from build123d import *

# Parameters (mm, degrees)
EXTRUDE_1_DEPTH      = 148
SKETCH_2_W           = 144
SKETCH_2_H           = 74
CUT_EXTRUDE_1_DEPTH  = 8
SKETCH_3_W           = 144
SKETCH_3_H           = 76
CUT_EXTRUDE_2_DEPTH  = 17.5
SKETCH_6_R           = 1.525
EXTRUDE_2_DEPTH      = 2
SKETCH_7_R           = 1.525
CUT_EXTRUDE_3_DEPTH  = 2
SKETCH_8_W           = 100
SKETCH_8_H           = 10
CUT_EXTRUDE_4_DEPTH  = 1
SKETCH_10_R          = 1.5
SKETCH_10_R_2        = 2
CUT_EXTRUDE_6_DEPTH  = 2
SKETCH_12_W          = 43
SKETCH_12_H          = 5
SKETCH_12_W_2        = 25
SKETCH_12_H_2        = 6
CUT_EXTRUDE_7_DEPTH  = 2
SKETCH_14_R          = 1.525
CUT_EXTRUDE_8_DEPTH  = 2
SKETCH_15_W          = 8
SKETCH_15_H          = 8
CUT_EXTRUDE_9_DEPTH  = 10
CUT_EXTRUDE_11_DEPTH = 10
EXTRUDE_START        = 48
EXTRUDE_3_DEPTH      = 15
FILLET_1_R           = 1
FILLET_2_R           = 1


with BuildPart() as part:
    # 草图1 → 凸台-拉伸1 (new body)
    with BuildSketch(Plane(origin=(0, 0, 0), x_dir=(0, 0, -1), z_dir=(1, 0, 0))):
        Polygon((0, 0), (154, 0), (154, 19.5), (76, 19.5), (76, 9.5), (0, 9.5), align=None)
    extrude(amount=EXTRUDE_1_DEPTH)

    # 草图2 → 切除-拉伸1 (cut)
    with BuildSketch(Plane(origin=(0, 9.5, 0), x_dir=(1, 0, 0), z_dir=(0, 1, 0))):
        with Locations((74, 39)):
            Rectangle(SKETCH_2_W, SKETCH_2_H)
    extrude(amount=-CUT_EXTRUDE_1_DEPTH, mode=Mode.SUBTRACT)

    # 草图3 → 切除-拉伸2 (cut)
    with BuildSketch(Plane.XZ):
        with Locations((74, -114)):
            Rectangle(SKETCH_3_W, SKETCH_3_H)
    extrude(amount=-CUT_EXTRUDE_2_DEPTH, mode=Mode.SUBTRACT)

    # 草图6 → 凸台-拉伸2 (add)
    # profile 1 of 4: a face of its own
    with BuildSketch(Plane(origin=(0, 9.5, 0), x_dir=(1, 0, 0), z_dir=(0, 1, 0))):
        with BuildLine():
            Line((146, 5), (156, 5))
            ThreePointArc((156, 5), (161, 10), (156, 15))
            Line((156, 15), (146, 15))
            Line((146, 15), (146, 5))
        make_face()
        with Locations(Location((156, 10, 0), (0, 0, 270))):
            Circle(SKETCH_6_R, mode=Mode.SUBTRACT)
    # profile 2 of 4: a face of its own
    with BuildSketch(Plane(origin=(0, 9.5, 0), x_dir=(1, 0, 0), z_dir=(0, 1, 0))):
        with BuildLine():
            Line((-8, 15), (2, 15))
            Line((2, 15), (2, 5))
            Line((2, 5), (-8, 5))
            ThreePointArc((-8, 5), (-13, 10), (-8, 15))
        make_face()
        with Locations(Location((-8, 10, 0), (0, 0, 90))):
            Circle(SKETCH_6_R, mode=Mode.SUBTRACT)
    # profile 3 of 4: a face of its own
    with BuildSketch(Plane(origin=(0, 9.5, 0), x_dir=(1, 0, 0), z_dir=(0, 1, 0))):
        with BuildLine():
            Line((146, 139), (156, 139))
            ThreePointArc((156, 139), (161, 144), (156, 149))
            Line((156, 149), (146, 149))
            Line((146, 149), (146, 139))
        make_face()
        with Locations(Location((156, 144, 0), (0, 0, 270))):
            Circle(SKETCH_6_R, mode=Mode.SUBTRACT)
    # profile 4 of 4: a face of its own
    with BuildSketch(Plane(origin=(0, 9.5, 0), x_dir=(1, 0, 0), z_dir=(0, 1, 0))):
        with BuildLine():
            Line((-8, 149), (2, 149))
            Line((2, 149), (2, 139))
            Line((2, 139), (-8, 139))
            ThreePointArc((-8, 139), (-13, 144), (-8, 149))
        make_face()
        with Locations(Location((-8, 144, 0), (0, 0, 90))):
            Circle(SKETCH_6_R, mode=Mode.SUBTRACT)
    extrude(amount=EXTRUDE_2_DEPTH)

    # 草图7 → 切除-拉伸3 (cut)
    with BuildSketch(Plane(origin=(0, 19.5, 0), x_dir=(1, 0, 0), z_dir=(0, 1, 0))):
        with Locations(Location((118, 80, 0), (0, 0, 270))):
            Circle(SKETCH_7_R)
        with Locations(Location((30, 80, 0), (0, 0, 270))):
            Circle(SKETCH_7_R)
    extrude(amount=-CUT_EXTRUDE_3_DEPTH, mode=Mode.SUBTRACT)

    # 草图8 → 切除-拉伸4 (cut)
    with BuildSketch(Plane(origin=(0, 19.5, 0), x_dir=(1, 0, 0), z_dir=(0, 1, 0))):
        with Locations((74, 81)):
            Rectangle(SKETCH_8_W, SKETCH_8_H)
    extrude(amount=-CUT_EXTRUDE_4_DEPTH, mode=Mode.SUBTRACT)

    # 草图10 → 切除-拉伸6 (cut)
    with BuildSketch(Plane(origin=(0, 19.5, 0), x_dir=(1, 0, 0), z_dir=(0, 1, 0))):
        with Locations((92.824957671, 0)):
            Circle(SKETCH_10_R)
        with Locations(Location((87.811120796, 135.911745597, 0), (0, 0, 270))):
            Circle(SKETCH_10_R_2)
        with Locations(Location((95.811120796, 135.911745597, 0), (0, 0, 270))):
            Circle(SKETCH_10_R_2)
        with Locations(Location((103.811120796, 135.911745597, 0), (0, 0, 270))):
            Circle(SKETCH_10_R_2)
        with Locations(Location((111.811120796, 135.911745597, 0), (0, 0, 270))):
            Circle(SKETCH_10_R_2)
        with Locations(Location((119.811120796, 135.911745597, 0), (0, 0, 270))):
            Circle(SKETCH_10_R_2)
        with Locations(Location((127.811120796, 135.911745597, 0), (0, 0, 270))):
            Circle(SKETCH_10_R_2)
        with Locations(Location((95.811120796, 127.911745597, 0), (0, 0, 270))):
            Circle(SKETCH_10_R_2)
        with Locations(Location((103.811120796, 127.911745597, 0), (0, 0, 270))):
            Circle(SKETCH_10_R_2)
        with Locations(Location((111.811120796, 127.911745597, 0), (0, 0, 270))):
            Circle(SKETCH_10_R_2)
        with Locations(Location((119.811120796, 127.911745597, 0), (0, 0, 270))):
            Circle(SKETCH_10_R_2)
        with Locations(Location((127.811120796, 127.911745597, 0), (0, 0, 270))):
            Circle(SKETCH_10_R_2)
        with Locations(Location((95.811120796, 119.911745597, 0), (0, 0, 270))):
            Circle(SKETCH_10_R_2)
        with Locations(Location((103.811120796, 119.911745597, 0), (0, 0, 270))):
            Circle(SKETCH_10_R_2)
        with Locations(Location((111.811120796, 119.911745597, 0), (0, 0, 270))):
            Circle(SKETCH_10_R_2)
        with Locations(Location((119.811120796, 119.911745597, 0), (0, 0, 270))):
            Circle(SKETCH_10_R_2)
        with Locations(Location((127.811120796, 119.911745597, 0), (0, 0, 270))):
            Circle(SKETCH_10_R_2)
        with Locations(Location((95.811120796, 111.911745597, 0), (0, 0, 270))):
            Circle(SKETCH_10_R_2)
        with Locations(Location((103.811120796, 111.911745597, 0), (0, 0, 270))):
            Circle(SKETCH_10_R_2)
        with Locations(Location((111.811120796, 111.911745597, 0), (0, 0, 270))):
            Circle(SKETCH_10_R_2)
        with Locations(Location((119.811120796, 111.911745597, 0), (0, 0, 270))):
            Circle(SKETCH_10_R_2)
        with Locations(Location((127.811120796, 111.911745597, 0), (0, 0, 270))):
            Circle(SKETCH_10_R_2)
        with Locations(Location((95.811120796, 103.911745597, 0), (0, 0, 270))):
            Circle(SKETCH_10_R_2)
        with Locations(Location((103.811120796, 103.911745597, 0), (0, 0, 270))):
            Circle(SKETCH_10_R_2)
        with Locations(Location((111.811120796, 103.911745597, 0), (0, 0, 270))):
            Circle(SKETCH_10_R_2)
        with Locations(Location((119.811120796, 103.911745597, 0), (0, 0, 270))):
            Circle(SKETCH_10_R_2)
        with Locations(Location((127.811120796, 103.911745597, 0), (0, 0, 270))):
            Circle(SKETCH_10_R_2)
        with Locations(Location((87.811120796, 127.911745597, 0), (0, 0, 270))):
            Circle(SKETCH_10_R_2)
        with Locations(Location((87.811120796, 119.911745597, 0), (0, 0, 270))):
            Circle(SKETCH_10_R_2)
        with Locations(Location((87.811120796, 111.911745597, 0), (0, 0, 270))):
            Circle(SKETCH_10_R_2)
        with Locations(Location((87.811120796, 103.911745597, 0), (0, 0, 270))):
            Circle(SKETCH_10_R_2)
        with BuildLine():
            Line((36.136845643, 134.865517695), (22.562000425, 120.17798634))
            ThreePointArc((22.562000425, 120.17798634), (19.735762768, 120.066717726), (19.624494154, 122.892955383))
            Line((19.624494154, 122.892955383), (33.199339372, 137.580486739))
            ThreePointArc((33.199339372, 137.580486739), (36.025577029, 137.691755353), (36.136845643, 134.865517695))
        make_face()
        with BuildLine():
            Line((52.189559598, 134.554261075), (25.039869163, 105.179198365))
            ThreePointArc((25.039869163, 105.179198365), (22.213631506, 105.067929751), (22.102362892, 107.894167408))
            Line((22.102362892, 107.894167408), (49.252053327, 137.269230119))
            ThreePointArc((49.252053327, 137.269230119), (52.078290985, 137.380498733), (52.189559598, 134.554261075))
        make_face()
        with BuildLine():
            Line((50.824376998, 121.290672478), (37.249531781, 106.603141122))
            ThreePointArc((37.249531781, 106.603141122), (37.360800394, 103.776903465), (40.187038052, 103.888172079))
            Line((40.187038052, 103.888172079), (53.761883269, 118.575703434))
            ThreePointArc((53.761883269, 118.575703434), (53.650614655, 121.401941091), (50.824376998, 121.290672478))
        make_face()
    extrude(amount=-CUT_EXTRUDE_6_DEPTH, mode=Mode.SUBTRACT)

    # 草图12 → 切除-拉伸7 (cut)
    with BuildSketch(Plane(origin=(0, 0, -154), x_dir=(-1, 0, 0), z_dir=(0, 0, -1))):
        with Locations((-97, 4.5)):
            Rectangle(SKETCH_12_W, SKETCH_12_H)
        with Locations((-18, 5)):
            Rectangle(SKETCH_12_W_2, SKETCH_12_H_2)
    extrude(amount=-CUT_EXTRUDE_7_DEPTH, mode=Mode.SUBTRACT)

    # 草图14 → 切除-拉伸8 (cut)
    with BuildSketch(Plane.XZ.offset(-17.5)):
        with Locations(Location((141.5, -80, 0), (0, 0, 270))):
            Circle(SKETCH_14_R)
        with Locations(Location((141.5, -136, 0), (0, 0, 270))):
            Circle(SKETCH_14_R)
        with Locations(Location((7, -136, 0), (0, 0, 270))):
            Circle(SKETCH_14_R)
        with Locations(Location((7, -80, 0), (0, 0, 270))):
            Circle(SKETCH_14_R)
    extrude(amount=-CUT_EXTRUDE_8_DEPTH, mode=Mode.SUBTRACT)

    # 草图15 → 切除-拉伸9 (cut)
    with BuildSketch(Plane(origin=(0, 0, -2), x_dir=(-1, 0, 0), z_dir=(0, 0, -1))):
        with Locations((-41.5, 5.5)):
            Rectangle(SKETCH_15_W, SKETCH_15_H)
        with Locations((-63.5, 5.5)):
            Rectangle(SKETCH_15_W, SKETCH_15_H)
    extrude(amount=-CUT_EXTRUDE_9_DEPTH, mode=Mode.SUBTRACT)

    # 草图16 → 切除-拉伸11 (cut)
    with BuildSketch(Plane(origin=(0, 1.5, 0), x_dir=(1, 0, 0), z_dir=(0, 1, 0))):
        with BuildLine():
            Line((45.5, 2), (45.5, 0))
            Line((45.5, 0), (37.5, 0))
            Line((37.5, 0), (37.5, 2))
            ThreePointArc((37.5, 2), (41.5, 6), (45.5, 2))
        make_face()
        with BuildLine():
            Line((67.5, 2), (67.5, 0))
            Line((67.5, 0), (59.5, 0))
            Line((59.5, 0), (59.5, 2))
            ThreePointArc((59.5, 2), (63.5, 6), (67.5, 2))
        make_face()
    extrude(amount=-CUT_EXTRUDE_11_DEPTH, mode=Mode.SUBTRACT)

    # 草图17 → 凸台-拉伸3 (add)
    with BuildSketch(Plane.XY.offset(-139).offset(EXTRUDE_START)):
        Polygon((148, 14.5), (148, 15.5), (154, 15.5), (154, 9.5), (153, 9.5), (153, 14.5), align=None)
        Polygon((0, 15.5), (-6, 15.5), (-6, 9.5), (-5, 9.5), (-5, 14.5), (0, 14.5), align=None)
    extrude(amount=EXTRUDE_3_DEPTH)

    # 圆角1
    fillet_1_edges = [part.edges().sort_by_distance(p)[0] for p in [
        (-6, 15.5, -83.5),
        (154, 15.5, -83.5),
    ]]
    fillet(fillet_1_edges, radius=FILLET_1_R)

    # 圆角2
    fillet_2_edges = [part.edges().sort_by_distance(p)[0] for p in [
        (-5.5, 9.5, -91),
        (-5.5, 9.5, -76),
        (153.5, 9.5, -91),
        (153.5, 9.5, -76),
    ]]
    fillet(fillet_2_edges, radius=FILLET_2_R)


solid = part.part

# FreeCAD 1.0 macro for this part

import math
import FreeCAD as App
import Part
import Sketcher


def edges_at(feature, points):
    """Names of the edges that pass closest to the given points."""
    edges = feature.Shape.Edges
    near = lambda p: min(range(len(edges)), key=lambda i: edges[i].distToShape(Part.Vertex(*p))[0])
    return sorted({f"Edge{near(p) + 1}" for p in points})


def add_polygon(sketch, points):
    """Adds a closed chain of lines whose ends are joined by coincident constraints."""
    first, n = sketch.GeometryCount, len(points)
    for a, b in zip(points, points[1:] + points[:1]):
        sketch.addGeometry(Part.LineSegment(App.Vector(*a, 0), App.Vector(*b, 0)), False)
    for i in range(n):
        sketch.addConstraint(Sketcher.Constraint("Coincident", first + i, 2, first + (i + 1) % n, 1))

doc = App.newDocument("Part")
body = doc.addObject("PartDesign::Body", "Body")

# Sketch on YZ plane
sketch1 = body.newObject("Sketcher::SketchObject", "Sketch")
sketch1.AttachmentSupport = (doc.getObject("YZ_Plane"), [""])
sketch1.MapMode = "FlatFace"
add_polygon(sketch1, [(0, 0), (0, -154), (20, -154), (20, -76), (10, -76), (10, 0)])  # lines 0-5
sketch1.addConstraint(Sketcher.Constraint("Vertical", 0))
sketch1.addConstraint(Sketcher.Constraint("Horizontal", 1))
sketch1.addConstraint(Sketcher.Constraint("Vertical", 2))
sketch1.addConstraint(Sketcher.Constraint("Horizontal", 3))
sketch1.addConstraint(Sketcher.Constraint("Vertical", 4))
sketch1.addConstraint(Sketcher.Constraint("Horizontal", 5))
sketch1.addConstraint(Sketcher.Constraint("Coincident", 5, 2, -1, 1))
sketch1.addConstraint(Sketcher.Constraint("DistanceX", 3, 2, 3, 1, 10.0))
sketch1.addConstraint(Sketcher.Constraint("DistanceY", 0, 2, 0, 1, 154.0))
sketch1.addConstraint(Sketcher.Constraint("DistanceY", 2, 1, 2, 2, 78.0))
sketch1.addConstraint(Sketcher.Constraint("DistanceX", 1, 1, 1, 2, 19.5))
pad1 = body.newObject("PartDesign::Pad", "Pad")
pad1.Profile = sketch1
pad1.Length = 148

# Sketch on XZ plane
sketch2 = body.newObject("Sketcher::SketchObject", "Sketch001")
sketch2.AttachmentSupport = (doc.getObject("XZ_Plane"), [""])
sketch2.MapMode = "FlatFace"
sketch2.AttachmentOffset = App.Placement(App.Vector(0, 0, -9.5), App.Rotation())
add_polygon(sketch2, [(2, -76), (2, -2), (146, -2), (146, -76)])  # lines 0-3
sketch2.addConstraint(Sketcher.Constraint("Vertical", 0))
sketch2.addConstraint(Sketcher.Constraint("Horizontal", 1))
sketch2.addConstraint(Sketcher.Constraint("Vertical", 2))
sketch2.addConstraint(Sketcher.Constraint("Horizontal", 3))
sketch2.addConstraint(Sketcher.Constraint("DistanceX", 1, 1, 1, 2, 144.0))
sketch2.addConstraint(Sketcher.Constraint("DistanceY", 0, 1, 0, 2, 74.0))
sketch2.addConstraint(Sketcher.Constraint("DistanceX", -1, 1, 0, 2, 2.0))
sketch2.addConstraint(Sketcher.Constraint("DistanceY", 0, 2, -1, 1, 2.0))
pocket1 = body.newObject("PartDesign::Pocket", "Pocket")
pocket1.Profile = sketch2
pocket1.Length = 8
pocket1.Reversed = True

# Sketch on XZ plane
sketch3 = body.newObject("Sketcher::SketchObject", "Sketch002")
sketch3.AttachmentSupport = (doc.getObject("XZ_Plane"), [""])
sketch3.MapMode = "FlatFace"
add_polygon(sketch3, [(2, -76), (2, -152), (146, -152), (146, -76)])  # lines 0-3
sketch3.addConstraint(Sketcher.Constraint("Vertical", 0))
sketch3.addConstraint(Sketcher.Constraint("Horizontal", 1))
sketch3.addConstraint(Sketcher.Constraint("Vertical", 2))
sketch3.addConstraint(Sketcher.Constraint("Horizontal", 3))
sketch3.addConstraint(Sketcher.Constraint("DistanceX", 1, 1, 1, 2, 144.0))
sketch3.addConstraint(Sketcher.Constraint("DistanceY", 0, 2, 0, 1, 76.0))
sketch3.addConstraint(Sketcher.Constraint("DistanceX", -1, 1, 0, 2, 2.0))
sketch3.addConstraint(Sketcher.Constraint("DistanceY", 0, 2, -1, 1, 152.0))
pocket2 = body.newObject("PartDesign::Pocket", "Pocket001")
pocket2.Profile = sketch3
pocket2.Length = 17.5

# Sketch on XZ plane
sketch4 = body.newObject("Sketcher::SketchObject", "Sketch003")
sketch4.AttachmentSupport = (doc.getObject("XZ_Plane"), [""])
sketch4.MapMode = "FlatFace"
sketch4.AttachmentOffset = App.Placement(App.Vector(0, 0, -9.5), App.Rotation())
sketch4.addGeometry(Part.LineSegment(App.Vector(146, -5, 0), App.Vector(156, -5, 0)), False)
sketch4.addGeometry(Part.ArcOfCircle(Part.Circle(App.Vector(156, -10, 0), App.Vector(0, 0, 1), 5), math.radians(-90), math.radians(90)), False)
sketch4.addGeometry(Part.LineSegment(App.Vector(156, -15, 0), App.Vector(146, -15, 0)), False)
sketch4.addGeometry(Part.LineSegment(App.Vector(146, -15, 0), App.Vector(146, -5, 0)), False)
sketch4.addGeometry(Part.Circle(App.Vector(156, -10, 0), App.Vector(0, 0, 1), 1.5), False)
sketch4.addGeometry(Part.LineSegment(App.Vector(2, -15, 0), App.Vector(-8, -15, 0)), False)
sketch4.addGeometry(Part.ArcOfCircle(Part.Circle(App.Vector(-8, -10, 0), App.Vector(0, 0, 1), 5), math.radians(90), math.radians(270)), False)
sketch4.addGeometry(Part.LineSegment(App.Vector(-8, -5, 0), App.Vector(2, -5, 0)), False)
sketch4.addGeometry(Part.LineSegment(App.Vector(2, -5, 0), App.Vector(2, -15, 0)), False)
sketch4.addGeometry(Part.Circle(App.Vector(-8, -10, 0), App.Vector(0, 0, 1), 1.5), False)
sketch4.addGeometry(Part.LineSegment(App.Vector(146, -139, 0), App.Vector(156, -139, 0)), False)
sketch4.addGeometry(Part.ArcOfCircle(Part.Circle(App.Vector(156, -144, 0), App.Vector(0, 0, 1), 5), math.radians(-90), math.radians(90)), False)
sketch4.addGeometry(Part.LineSegment(App.Vector(156, -149, 0), App.Vector(146, -149, 0)), False)
sketch4.addGeometry(Part.LineSegment(App.Vector(146, -149, 0), App.Vector(146, -139, 0)), False)
sketch4.addGeometry(Part.Circle(App.Vector(156, -144, 0), App.Vector(0, 0, 1), 1.5), False)
sketch4.addGeometry(Part.LineSegment(App.Vector(2, -149, 0), App.Vector(-8, -149, 0)), False)
sketch4.addGeometry(Part.ArcOfCircle(Part.Circle(App.Vector(-8, -144, 0), App.Vector(0, 0, 1), 5), math.radians(90), math.radians(270)), False)
sketch4.addGeometry(Part.LineSegment(App.Vector(-8, -139, 0), App.Vector(2, -139, 0)), False)
sketch4.addGeometry(Part.LineSegment(App.Vector(2, -139, 0), App.Vector(2, -149, 0)), False)
sketch4.addGeometry(Part.Circle(App.Vector(-8, -144, 0), App.Vector(0, 0, 1), 1.5), False)
sketch4.addConstraint(Sketcher.Constraint("Tangent", 0, 2, 1, 2))
sketch4.addConstraint(Sketcher.Constraint("Tangent", 1, 1, 2, 1))
sketch4.addConstraint(Sketcher.Constraint("Coincident", 2, 2, 3, 1))
sketch4.addConstraint(Sketcher.Constraint("Coincident", 3, 2, 0, 1))
sketch4.addConstraint(Sketcher.Constraint("Tangent", 5, 2, 6, 2))
sketch4.addConstraint(Sketcher.Constraint("Tangent", 6, 1, 7, 1))
sketch4.addConstraint(Sketcher.Constraint("Coincident", 7, 2, 8, 1))
sketch4.addConstraint(Sketcher.Constraint("Coincident", 8, 2, 5, 1))
sketch4.addConstraint(Sketcher.Constraint("Tangent", 10, 2, 11, 2))
sketch4.addConstraint(Sketcher.Constraint("Tangent", 11, 1, 12, 1))
sketch4.addConstraint(Sketcher.Constraint("Coincident", 12, 2, 13, 1))
sketch4.addConstraint(Sketcher.Constraint("Coincident", 13, 2, 10, 1))
sketch4.addConstraint(Sketcher.Constraint("Tangent", 15, 2, 16, 2))
sketch4.addConstraint(Sketcher.Constraint("Tangent", 16, 1, 17, 1))
sketch4.addConstraint(Sketcher.Constraint("Coincident", 17, 2, 18, 1))
sketch4.addConstraint(Sketcher.Constraint("Coincident", 18, 2, 15, 1))
sketch4.addConstraint(Sketcher.Constraint("Horizontal", 0))
sketch4.addConstraint(Sketcher.Constraint("Horizontal", 2))
sketch4.addConstraint(Sketcher.Constraint("Vertical", 3))
sketch4.addConstraint(Sketcher.Constraint("Horizontal", 5))
sketch4.addConstraint(Sketcher.Constraint("Horizontal", 7))
sketch4.addConstraint(Sketcher.Constraint("Vertical", 8))
sketch4.addConstraint(Sketcher.Constraint("Horizontal", 10))
sketch4.addConstraint(Sketcher.Constraint("Horizontal", 12))
sketch4.addConstraint(Sketcher.Constraint("Vertical", 13))
sketch4.addConstraint(Sketcher.Constraint("Horizontal", 15))
sketch4.addConstraint(Sketcher.Constraint("Horizontal", 17))
sketch4.addConstraint(Sketcher.Constraint("Vertical", 18))
sketch4.addConstraint(Sketcher.Constraint("Coincident", 4, 3, 1, 3))
sketch4.addConstraint(Sketcher.Constraint("Coincident", 9, 3, 6, 3))
sketch4.addConstraint(Sketcher.Constraint("Coincident", 14, 3, 11, 3))
sketch4.addConstraint(Sketcher.Constraint("Coincident", 19, 3, 16, 3))
sketch4.addConstraint(Sketcher.Constraint("Equal", 1, 6))
sketch4.addConstraint(Sketcher.Constraint("Equal", 4, 9))
sketch4.addConstraint(Sketcher.Constraint("Equal", 6, 11))
sketch4.addConstraint(Sketcher.Constraint("Equal", 9, 14))
sketch4.addConstraint(Sketcher.Constraint("Equal", 11, 16))
sketch4.addConstraint(Sketcher.Constraint("Equal", 14, 19))
sketch4.addConstraint(Sketcher.Constraint("Horizontal", 4, 3, 6, 3))
sketch4.addConstraint(Sketcher.Constraint("Horizontal", 14, 3, 16, 3))
sketch4.addConstraint(Sketcher.Constraint("Vertical", 4, 3, 11, 3))
sketch4.addConstraint(Sketcher.Constraint("Vertical", 9, 3, 16, 3))
sketch4.addConstraint(Sketcher.Constraint("Vertical", 3, 2, 12, 2))
sketch4.addConstraint(Sketcher.Constraint("Vertical", 8, 2, 17, 2))
sketch4.addConstraint(Sketcher.Constraint("Equal", 2, 5))
sketch4.addConstraint(Sketcher.Constraint("Equal", 17, 3))
sketch4.addConstraint(Sketcher.Constraint("Radius", 1, 5.0))
sketch4.addConstraint(Sketcher.Constraint("Diameter", 4, 3.05))
sketch4.addConstraint(Sketcher.Constraint("DistanceX", -1, 1, 1, 3, 156.0))
sketch4.addConstraint(Sketcher.Constraint("DistanceY", 1, 3, -1, 1, 10.0))
sketch4.addConstraint(Sketcher.Constraint("DistanceX", 6, 3, -1, 1, 8.0))
sketch4.addConstraint(Sketcher.Constraint("DistanceY", 11, 3, -1, 1, 144.0))
pad2 = body.newObject("PartDesign::Pad", "Pad001")
pad2.Profile = sketch4
pad2.Length = 2
pad2.Reversed = True

# Sketch on XZ plane
sketch5 = body.newObject("Sketcher::SketchObject", "Sketch004")
sketch5.AttachmentSupport = (doc.getObject("XZ_Plane"), [""])
sketch5.MapMode = "FlatFace"
sketch5.AttachmentOffset = App.Placement(App.Vector(0, 0, -19.5), App.Rotation())
sketch5.addGeometry(Part.Circle(App.Vector(118, -80, 0), App.Vector(0, 0, 1), 1.5), False)
sketch5.addGeometry(Part.Circle(App.Vector(30, -80, 0), App.Vector(0, 0, 1), 1.5), False)
sketch5.addConstraint(Sketcher.Constraint("Equal", 0, 1))
sketch5.addConstraint(Sketcher.Constraint("Horizontal", 0, 3, 1, 3))
sketch5.addConstraint(Sketcher.Constraint("Diameter", 0, 3.05))
sketch5.addConstraint(Sketcher.Constraint("DistanceX", -1, 1, 0, 3, 118.0))
sketch5.addConstraint(Sketcher.Constraint("DistanceY", 0, 3, -1, 1, 80.0))
sketch5.addConstraint(Sketcher.Constraint("DistanceX", -1, 1, 1, 3, 30.0))
pocket3 = body.newObject("PartDesign::Pocket", "Pocket002")
pocket3.Profile = sketch5
pocket3.Length = 2
pocket3.Reversed = True

# Sketch on XZ plane
sketch6 = body.newObject("Sketcher::SketchObject", "Sketch005")
sketch6.AttachmentSupport = (doc.getObject("XZ_Plane"), [""])
sketch6.MapMode = "FlatFace"
sketch6.AttachmentOffset = App.Placement(App.Vector(0, 0, -19.5), App.Rotation())
add_polygon(sketch6, [(24, -86), (24, -76), (124, -76), (124, -86)])  # lines 0-3
sketch6.addConstraint(Sketcher.Constraint("Vertical", 0))
sketch6.addConstraint(Sketcher.Constraint("Horizontal", 1))
sketch6.addConstraint(Sketcher.Constraint("Vertical", 2))
sketch6.addConstraint(Sketcher.Constraint("Horizontal", 3))
sketch6.addConstraint(Sketcher.Constraint("DistanceX", 1, 1, 1, 2, 100.0))
sketch6.addConstraint(Sketcher.Constraint("DistanceY", 0, 1, 0, 2, 10.0))
sketch6.addConstraint(Sketcher.Constraint("DistanceX", -1, 1, 0, 2, 24.0))
sketch6.addConstraint(Sketcher.Constraint("DistanceY", 0, 2, -1, 1, 76.0))
pocket4 = body.newObject("PartDesign::Pocket", "Pocket003")
pocket4.Profile = sketch6
pocket4.Length = 1
pocket4.Reversed = True

# Sketch on XZ plane
sketch7 = body.newObject("Sketcher::SketchObject", "Sketch006")
sketch7.AttachmentSupport = (doc.getObject("XZ_Plane"), [""])
sketch7.MapMode = "FlatFace"
sketch7.AttachmentOffset = App.Placement(App.Vector(0, 0, -19.5), App.Rotation())
sketch7.addGeometry(Part.Circle(App.Vector(92.8, 0, 0), App.Vector(0, 0, 1), 1.5), False)
sketch7.addGeometry(Part.Circle(App.Vector(87.8, -135.9, 0), App.Vector(0, 0, 1), 2), False)
sketch7.addGeometry(Part.Circle(App.Vector(95.8, -135.9, 0), App.Vector(0, 0, 1), 2), False)
sketch7.addGeometry(Part.Circle(App.Vector(103.8, -135.9, 0), App.Vector(0, 0, 1), 2), False)
sketch7.addGeometry(Part.Circle(App.Vector(111.8, -135.9, 0), App.Vector(0, 0, 1), 2), False)
sketch7.addGeometry(Part.Circle(App.Vector(119.8, -135.9, 0), App.Vector(0, 0, 1), 2), False)
sketch7.addGeometry(Part.Circle(App.Vector(127.8, -135.9, 0), App.Vector(0, 0, 1), 2), False)
sketch7.addGeometry(Part.Circle(App.Vector(95.8, -127.9, 0), App.Vector(0, 0, 1), 2), False)
sketch7.addGeometry(Part.Circle(App.Vector(103.8, -127.9, 0), App.Vector(0, 0, 1), 2), False)
sketch7.addGeometry(Part.Circle(App.Vector(111.8, -127.9, 0), App.Vector(0, 0, 1), 2), False)
sketch7.addGeometry(Part.Circle(App.Vector(119.8, -127.9, 0), App.Vector(0, 0, 1), 2), False)
sketch7.addGeometry(Part.Circle(App.Vector(127.8, -127.9, 0), App.Vector(0, 0, 1), 2), False)
sketch7.addGeometry(Part.Circle(App.Vector(95.8, -119.9, 0), App.Vector(0, 0, 1), 2), False)
sketch7.addGeometry(Part.Circle(App.Vector(103.8, -119.9, 0), App.Vector(0, 0, 1), 2), False)
sketch7.addGeometry(Part.Circle(App.Vector(111.8, -119.9, 0), App.Vector(0, 0, 1), 2), False)
sketch7.addGeometry(Part.Circle(App.Vector(119.8, -119.9, 0), App.Vector(0, 0, 1), 2), False)
sketch7.addGeometry(Part.Circle(App.Vector(127.8, -119.9, 0), App.Vector(0, 0, 1), 2), False)
sketch7.addGeometry(Part.Circle(App.Vector(95.8, -111.9, 0), App.Vector(0, 0, 1), 2), False)
sketch7.addGeometry(Part.Circle(App.Vector(103.8, -111.9, 0), App.Vector(0, 0, 1), 2), False)
sketch7.addGeometry(Part.Circle(App.Vector(111.8, -111.9, 0), App.Vector(0, 0, 1), 2), False)
sketch7.addGeometry(Part.Circle(App.Vector(119.8, -111.9, 0), App.Vector(0, 0, 1), 2), False)
sketch7.addGeometry(Part.Circle(App.Vector(127.8, -111.9, 0), App.Vector(0, 0, 1), 2), False)
sketch7.addGeometry(Part.Circle(App.Vector(95.8, -103.9, 0), App.Vector(0, 0, 1), 2), False)
sketch7.addGeometry(Part.Circle(App.Vector(103.8, -103.9, 0), App.Vector(0, 0, 1), 2), False)
sketch7.addGeometry(Part.Circle(App.Vector(111.8, -103.9, 0), App.Vector(0, 0, 1), 2), False)
sketch7.addGeometry(Part.Circle(App.Vector(119.8, -103.9, 0), App.Vector(0, 0, 1), 2), False)
sketch7.addGeometry(Part.Circle(App.Vector(127.8, -103.9, 0), App.Vector(0, 0, 1), 2), False)
sketch7.addGeometry(Part.Circle(App.Vector(87.8, -127.9, 0), App.Vector(0, 0, 1), 2), False)
sketch7.addGeometry(Part.Circle(App.Vector(87.8, -119.9, 0), App.Vector(0, 0, 1), 2), False)
sketch7.addGeometry(Part.Circle(App.Vector(87.8, -111.9, 0), App.Vector(0, 0, 1), 2), False)
sketch7.addGeometry(Part.Circle(App.Vector(87.8, -103.9, 0), App.Vector(0, 0, 1), 2), False)
sketch7.addGeometry(Part.LineSegment(App.Vector(22.6, -120.2, 0), App.Vector(36.1, -134.9, 0)), False)
sketch7.addGeometry(Part.ArcOfCircle(Part.Circle(App.Vector(34.7, -136.2, 0), App.Vector(0, 0, 1), 2), math.radians(-137), math.radians(43)), False)
sketch7.addGeometry(Part.LineSegment(App.Vector(33.2, -137.6, 0), App.Vector(19.6, -122.9, 0)), False)
sketch7.addGeometry(Part.ArcOfCircle(Part.Circle(App.Vector(21.1, -121.5, 0), App.Vector(0, 0, 1), 2), math.radians(43), math.radians(223)), False)
sketch7.addGeometry(Part.LineSegment(App.Vector(25, -105.2, 0), App.Vector(52.2, -134.6, 0)), False)
sketch7.addGeometry(Part.ArcOfCircle(Part.Circle(App.Vector(50.7, -135.9, 0), App.Vector(0, 0, 1), 2), math.radians(-137), math.radians(43)), False)
sketch7.addGeometry(Part.LineSegment(App.Vector(49.3, -137.3, 0), App.Vector(22.1, -107.9, 0)), False)
sketch7.addGeometry(Part.ArcOfCircle(Part.Circle(App.Vector(23.6, -106.5, 0), App.Vector(0, 0, 1), 2), math.radians(43), math.radians(223)), False)
sketch7.addGeometry(Part.LineSegment(App.Vector(50.8, -121.3, 0), App.Vector(37.2, -106.6, 0)), False)
sketch7.addGeometry(Part.ArcOfCircle(Part.Circle(App.Vector(38.7, -105.2, 0), App.Vector(0, 0, 1), 2), math.radians(43), math.radians(223)), False)
sketch7.addGeometry(Part.LineSegment(App.Vector(40.2, -103.9, 0), App.Vector(53.8, -118.6, 0)), False)
sketch7.addGeometry(Part.ArcOfCircle(Part.Circle(App.Vector(52.3, -119.9, 0), App.Vector(0, 0, 1), 2), math.radians(-137), math.radians(43)), False)
sketch7.addConstraint(Sketcher.Constraint("Tangent", 31, 2, 32, 2))
sketch7.addConstraint(Sketcher.Constraint("Tangent", 32, 1, 33, 1))
sketch7.addConstraint(Sketcher.Constraint("Tangent", 33, 2, 34, 2))
sketch7.addConstraint(Sketcher.Constraint("Tangent", 34, 1, 31, 1))
sketch7.addConstraint(Sketcher.Constraint("Tangent", 35, 2, 36, 2))
sketch7.addConstraint(Sketcher.Constraint("Tangent", 36, 1, 37, 1))
sketch7.addConstraint(Sketcher.Constraint("Tangent", 37, 2, 38, 2))
sketch7.addConstraint(Sketcher.Constraint("Tangent", 38, 1, 35, 1))
sketch7.addConstraint(Sketcher.Constraint("Tangent", 39, 2, 40, 2))
sketch7.addConstraint(Sketcher.Constraint("Tangent", 40, 1, 41, 1))
sketch7.addConstraint(Sketcher.Constraint("Tangent", 41, 2, 42, 2))
sketch7.addConstraint(Sketcher.Constraint("Tangent", 42, 1, 39, 1))
sketch7.addConstraint(Sketcher.Constraint("Equal", 1, 2))
sketch7.addConstraint(Sketcher.Constraint("Equal", 2, 3))
sketch7.addConstraint(Sketcher.Constraint("Equal", 3, 4))
sketch7.addConstraint(Sketcher.Constraint("Equal", 4, 5))
sketch7.addConstraint(Sketcher.Constraint("Equal", 5, 6))
sketch7.addConstraint(Sketcher.Constraint("Equal", 6, 7))
sketch7.addConstraint(Sketcher.Constraint("Equal", 7, 8))
sketch7.addConstraint(Sketcher.Constraint("Equal", 8, 9))
sketch7.addConstraint(Sketcher.Constraint("Equal", 9, 10))
sketch7.addConstraint(Sketcher.Constraint("Equal", 10, 11))
sketch7.addConstraint(Sketcher.Constraint("Equal", 11, 12))
sketch7.addConstraint(Sketcher.Constraint("Equal", 12, 13))
sketch7.addConstraint(Sketcher.Constraint("Equal", 13, 14))
sketch7.addConstraint(Sketcher.Constraint("Equal", 14, 15))
sketch7.addConstraint(Sketcher.Constraint("Equal", 15, 16))
sketch7.addConstraint(Sketcher.Constraint("Equal", 16, 17))
sketch7.addConstraint(Sketcher.Constraint("Equal", 17, 18))
sketch7.addConstraint(Sketcher.Constraint("Equal", 18, 19))
sketch7.addConstraint(Sketcher.Constraint("Equal", 19, 20))
sketch7.addConstraint(Sketcher.Constraint("Equal", 20, 21))
sketch7.addConstraint(Sketcher.Constraint("Equal", 21, 22))
sketch7.addConstraint(Sketcher.Constraint("Equal", 22, 23))
sketch7.addConstraint(Sketcher.Constraint("Equal", 23, 24))
sketch7.addConstraint(Sketcher.Constraint("Equal", 24, 25))
sketch7.addConstraint(Sketcher.Constraint("Equal", 25, 26))
sketch7.addConstraint(Sketcher.Constraint("Equal", 26, 27))
sketch7.addConstraint(Sketcher.Constraint("Equal", 27, 28))
sketch7.addConstraint(Sketcher.Constraint("Equal", 28, 29))
sketch7.addConstraint(Sketcher.Constraint("Equal", 29, 30))
sketch7.addConstraint(Sketcher.Constraint("Equal", 30, 32))
sketch7.addConstraint(Sketcher.Constraint("Equal", 32, 34))
sketch7.addConstraint(Sketcher.Constraint("Equal", 34, 36))
sketch7.addConstraint(Sketcher.Constraint("Equal", 36, 38))
sketch7.addConstraint(Sketcher.Constraint("Equal", 38, 40))
sketch7.addConstraint(Sketcher.Constraint("Equal", 40, 42))
sketch7.addConstraint(Sketcher.Constraint("PointOnObject", 0, 3, -1))
sketch7.addConstraint(Sketcher.Constraint("Parallel", 33, 35))
sketch7.addConstraint(Sketcher.Constraint("Parallel", 37, 39))
sketch7.addConstraint(Sketcher.Constraint("Horizontal", 1, 3, 2, 3))
sketch7.addConstraint(Sketcher.Constraint("Horizontal", 2, 3, 3, 3))
sketch7.addConstraint(Sketcher.Constraint("Horizontal", 3, 3, 4, 3))
sketch7.addConstraint(Sketcher.Constraint("Horizontal", 4, 3, 5, 3))
sketch7.addConstraint(Sketcher.Constraint("Horizontal", 5, 3, 6, 3))
sketch7.addConstraint(Sketcher.Constraint("Horizontal", 7, 3, 8, 3))
sketch7.addConstraint(Sketcher.Constraint("Horizontal", 8, 3, 9, 3))
sketch7.addConstraint(Sketcher.Constraint("Horizontal", 9, 3, 10, 3))
sketch7.addConstraint(Sketcher.Constraint("Horizontal", 10, 3, 11, 3))
sketch7.addConstraint(Sketcher.Constraint("Horizontal", 12, 3, 13, 3))
sketch7.addConstraint(Sketcher.Constraint("Horizontal", 13, 3, 14, 3))
sketch7.addConstraint(Sketcher.Constraint("Horizontal", 14, 3, 15, 3))
sketch7.addConstraint(Sketcher.Constraint("Horizontal", 15, 3, 16, 3))
sketch7.addConstraint(Sketcher.Constraint("Horizontal", 17, 3, 18, 3))
sketch7.addConstraint(Sketcher.Constraint("Horizontal", 18, 3, 19, 3))
sketch7.addConstraint(Sketcher.Constraint("Horizontal", 19, 3, 20, 3))
sketch7.addConstraint(Sketcher.Constraint("Horizontal", 20, 3, 21, 3))
sketch7.addConstraint(Sketcher.Constraint("Horizontal", 22, 3, 23, 3))
sketch7.addConstraint(Sketcher.Constraint("Horizontal", 23, 3, 24, 3))
sketch7.addConstraint(Sketcher.Constraint("Horizontal", 24, 3, 25, 3))
sketch7.addConstraint(Sketcher.Constraint("Horizontal", 25, 3, 26, 3))
sketch7.addConstraint(Sketcher.Constraint("Horizontal", 11, 3, 27, 3))
sketch7.addConstraint(Sketcher.Constraint("Horizontal", 16, 3, 28, 3))
sketch7.addConstraint(Sketcher.Constraint("Horizontal", 21, 3, 29, 3))
sketch7.addConstraint(Sketcher.Constraint("Horizontal", 26, 3, 30, 3))
sketch7.addConstraint(Sketcher.Constraint("Horizontal", 6, 3, 36, 3))
sketch7.addConstraint(Sketcher.Constraint("Vertical", 2, 3, 7, 3))
sketch7.addConstraint(Sketcher.Constraint("Vertical", 3, 3, 8, 3))
sketch7.addConstraint(Sketcher.Constraint("Vertical", 4, 3, 9, 3))
sketch7.addConstraint(Sketcher.Constraint("Vertical", 5, 3, 10, 3))
sketch7.addConstraint(Sketcher.Constraint("Vertical", 6, 3, 11, 3))
sketch7.addConstraint(Sketcher.Constraint("Vertical", 7, 3, 12, 3))
sketch7.addConstraint(Sketcher.Constraint("Vertical", 8, 3, 13, 3))
sketch7.addConstraint(Sketcher.Constraint("Vertical", 9, 3, 14, 3))
sketch7.addConstraint(Sketcher.Constraint("Vertical", 10, 3, 15, 3))
sketch7.addConstraint(Sketcher.Constraint("Vertical", 11, 3, 16, 3))
sketch7.addConstraint(Sketcher.Constraint("Vertical", 12, 3, 17, 3))
sketch7.addConstraint(Sketcher.Constraint("Vertical", 13, 3, 18, 3))
sketch7.addConstraint(Sketcher.Constraint("Vertical", 14, 3, 19, 3))
sketch7.addConstraint(Sketcher.Constraint("Vertical", 15, 3, 20, 3))
sketch7.addConstraint(Sketcher.Constraint("Vertical", 16, 3, 21, 3))
sketch7.addConstraint(Sketcher.Constraint("Vertical", 17, 3, 22, 3))
sketch7.addConstraint(Sketcher.Constraint("Vertical", 18, 3, 23, 3))
sketch7.addConstraint(Sketcher.Constraint("Vertical", 19, 3, 24, 3))
sketch7.addConstraint(Sketcher.Constraint("Vertical", 20, 3, 25, 3))
sketch7.addConstraint(Sketcher.Constraint("Vertical", 21, 3, 26, 3))
sketch7.addConstraint(Sketcher.Constraint("Vertical", 1, 3, 27, 3))
sketch7.addConstraint(Sketcher.Constraint("Vertical", 27, 3, 28, 3))
sketch7.addConstraint(Sketcher.Constraint("Vertical", 28, 3, 29, 3))
sketch7.addConstraint(Sketcher.Constraint("Vertical", 29, 3, 30, 3))
sketch7.addConstraint(Sketcher.Constraint("Equal", 33, 39))
sketch7.addConstraint(Sketcher.Constraint("Diameter", 0, 3.0))
sketch7.addConstraint(Sketcher.Constraint("Diameter", 1, 4.0))
sketch7.addConstraint(Sketcher.Constraint("Distance", 31, 20.0))
sketch7.addConstraint(Sketcher.Constraint("Distance", 35, 40.0))
sketch7.addConstraint(Sketcher.Constraint("DistanceX", 1, 3, 2, 3, 8.0))
sketch7.addConstraint(Sketcher.Constraint("DistanceX", 2, 3, 3, 3, 8.0))
sketch7.addConstraint(Sketcher.Constraint("DistanceX", 3, 3, 4, 3, 8.0))
sketch7.addConstraint(Sketcher.Constraint("DistanceX", 4, 3, 5, 3, 8.0))
sketch7.addConstraint(Sketcher.Constraint("DistanceX", 5, 3, 6, 3, 8.0))
sketch7.addConstraint(Sketcher.Constraint("DistanceY", 2, 3, 7, 3, 8.0))
sketch7.addConstraint(Sketcher.Constraint("DistanceY", 7, 3, 12, 3, 8.0))
sketch7.addConstraint(Sketcher.Constraint("DistanceY", 12, 3, 17, 3, 8.0))
sketch7.addConstraint(Sketcher.Constraint("DistanceY", 17, 3, 22, 3, 8.0))
sketch7.addConstraint(Sketcher.Constraint("DistanceX", -1, 1, 34, 1, 22.562))
sketch7.addConstraint(Sketcher.Constraint("DistanceY", 38, 1, -1, 1, 105.179198))
sketch7.addConstraint(Sketcher.Constraint("DistanceX", 34, 3, 31, 2, 15.043598))
sketch7.addConstraint(Sketcher.Constraint("DistanceY", 32, 1, 42, 3, 17.647299))
sketch7.addConstraint(Sketcher.Constraint("DistanceX", -1, 1, 1, 3, 87.811121))
sketch7.addConstraint(Sketcher.Constraint("DistanceY", 34, 3, -1, 1, 121.535471))
sketch7.addConstraint(Sketcher.Constraint("DistanceX", -1, 1, 42, 3, 52.29313))
sketch7.addConstraint(Sketcher.Constraint("DistanceX", -1, 1, 35, 2, 52.18956))
sketch7.addConstraint(Sketcher.Constraint("DistanceX", -1, 1, 0, 3, 92.824958))
pocket5 = body.newObject("PartDesign::Pocket", "Pocket004")
pocket5.Profile = sketch7
pocket5.Length = 2
pocket5.Reversed = True

# Sketch on XY plane
sketch8 = body.newObject("Sketcher::SketchObject", "Sketch007")
sketch8.AttachmentSupport = (doc.getObject("XY_Plane"), [""])
sketch8.MapMode = "FlatFace"
sketch8.AttachmentOffset = App.Placement(App.Vector(0, 0, -154), App.Rotation())
add_polygon(sketch8, [(118, 7), (118, 2), (76, 2), (76, 7)])  # lines 0-3
add_polygon(sketch8, [(30, 8), (30, 2), (6, 2), (6, 8)])  # lines 4-7
sketch8.addConstraint(Sketcher.Constraint("Vertical", 0))
sketch8.addConstraint(Sketcher.Constraint("Horizontal", 1))
sketch8.addConstraint(Sketcher.Constraint("Vertical", 2))
sketch8.addConstraint(Sketcher.Constraint("Horizontal", 3))
sketch8.addConstraint(Sketcher.Constraint("Vertical", 4))
sketch8.addConstraint(Sketcher.Constraint("Horizontal", 5))
sketch8.addConstraint(Sketcher.Constraint("Vertical", 6))
sketch8.addConstraint(Sketcher.Constraint("Horizontal", 7))
sketch8.addConstraint(Sketcher.Constraint("Horizontal", 1, 2, 4, 2))
sketch8.addConstraint(Sketcher.Constraint("DistanceX", 1, 2, 1, 1, 43.0))
sketch8.addConstraint(Sketcher.Constraint("DistanceX", 5, 2, 5, 1, 25.0))
sketch8.addConstraint(Sketcher.Constraint("DistanceY", 0, 2, 0, 1, 5.0))
sketch8.addConstraint(Sketcher.Constraint("DistanceY", 4, 2, 4, 1, 6.0))
sketch8.addConstraint(Sketcher.Constraint("DistanceY", -1, 1, 0, 2, 2.0))
sketch8.addConstraint(Sketcher.Constraint("DistanceX", 4, 2, 1, 2, 45.0))
sketch8.addConstraint(Sketcher.Constraint("DistanceX", -1, 1, 0, 2, 118.5))
pocket6 = body.newObject("PartDesign::Pocket", "Pocket005")
pocket6.Profile = sketch8
pocket6.Length = 2
pocket6.Reversed = True

# Sketch on XZ plane
sketch9 = body.newObject("Sketcher::SketchObject", "Sketch008")
sketch9.AttachmentSupport = (doc.getObject("XZ_Plane"), [""])
sketch9.MapMode = "FlatFace"
sketch9.AttachmentOffset = App.Placement(App.Vector(0, 0, -17.5), App.Rotation())
sketch9.addGeometry(Part.Circle(App.Vector(141.5, -80, 0), App.Vector(0, 0, 1), 1.5), False)
sketch9.addGeometry(Part.Circle(App.Vector(141.5, -136, 0), App.Vector(0, 0, 1), 1.5), False)
sketch9.addGeometry(Part.Circle(App.Vector(7, -136, 0), App.Vector(0, 0, 1), 1.5), False)
sketch9.addGeometry(Part.Circle(App.Vector(7, -80, 0), App.Vector(0, 0, 1), 1.5), False)
sketch9.addConstraint(Sketcher.Constraint("Equal", 0, 1))
sketch9.addConstraint(Sketcher.Constraint("Equal", 1, 2))
sketch9.addConstraint(Sketcher.Constraint("Equal", 2, 3))
sketch9.addConstraint(Sketcher.Constraint("Horizontal", 1, 3, 2, 3))
sketch9.addConstraint(Sketcher.Constraint("Horizontal", 0, 3, 3, 3))
sketch9.addConstraint(Sketcher.Constraint("Vertical", 0, 3, 1, 3))
sketch9.addConstraint(Sketcher.Constraint("Vertical", 2, 3, 3, 3))
sketch9.addConstraint(Sketcher.Constraint("Diameter", 0, 3.05))
sketch9.addConstraint(Sketcher.Constraint("DistanceY", 0, 3, -1, 1, 80.0))
sketch9.addConstraint(Sketcher.Constraint("DistanceY", 1, 3, -1, 1, 136.0))
sketch9.addConstraint(Sketcher.Constraint("DistanceX", -1, 1, 2, 3, 7.0))
sketch9.addConstraint(Sketcher.Constraint("DistanceX", -1, 1, 0, 3, 141.5))
pocket7 = body.newObject("PartDesign::Pocket", "Pocket006")
pocket7.Profile = sketch9
pocket7.Length = 2

# Sketch on XY plane
sketch10 = body.newObject("Sketcher::SketchObject", "Sketch009")
sketch10.AttachmentSupport = (doc.getObject("XY_Plane"), [""])
sketch10.MapMode = "FlatFace"
sketch10.AttachmentOffset = App.Placement(App.Vector(0, 0, -2), App.Rotation())
add_polygon(sketch10, [(46, 10), (46, 2), (38, 2), (38, 10)])  # lines 0-3
add_polygon(sketch10, [(68, 10), (68, 2), (60, 2), (60, 10)])  # lines 4-7
sketch10.addConstraint(Sketcher.Constraint("Vertical", 0))
sketch10.addConstraint(Sketcher.Constraint("Horizontal", 1))
sketch10.addConstraint(Sketcher.Constraint("Vertical", 2))
sketch10.addConstraint(Sketcher.Constraint("Horizontal", 3))
sketch10.addConstraint(Sketcher.Constraint("Vertical", 4))
sketch10.addConstraint(Sketcher.Constraint("Horizontal", 5))
sketch10.addConstraint(Sketcher.Constraint("Vertical", 6))
sketch10.addConstraint(Sketcher.Constraint("Horizontal", 7))
sketch10.addConstraint(Sketcher.Constraint("Horizontal", 1, 2, 4, 2))
sketch10.addConstraint(Sketcher.Constraint("Horizontal", 3, 2, 6, 2))
sketch10.addConstraint(Sketcher.Constraint("Equal", 3, 5))
sketch10.addConstraint(Sketcher.Constraint("Equal", 7, 0))
sketch10.addConstraint(Sketcher.Constraint("DistanceX", 1, 2, 1, 1, 8.0))
sketch10.addConstraint(Sketcher.Constraint("DistanceX", 0, 2, 4, 2, 22.0))
sketch10.addConstraint(Sketcher.Constraint("DistanceX", -1, 1, 0, 2, 45.5))
sketch10.addConstraint(Sketcher.Constraint("DistanceY", -1, 1, 0, 2, 1.5))
pocket8 = body.newObject("PartDesign::Pocket", "Pocket007")
pocket8.Profile = sketch10
pocket8.Length = 10
pocket8.Reversed = True

# Sketch on XZ plane
sketch11 = body.newObject("Sketcher::SketchObject", "Sketch010")
sketch11.AttachmentSupport = (doc.getObject("XZ_Plane"), [""])
sketch11.MapMode = "FlatFace"
sketch11.AttachmentOffset = App.Placement(App.Vector(0, 0, -1.5), App.Rotation())
sketch11.addGeometry(Part.LineSegment(App.Vector(45.5, 0, 0), App.Vector(45.5, -2, 0)), False)
sketch11.addGeometry(Part.ArcOfCircle(Part.Circle(App.Vector(41.5, -2, 0), App.Vector(0, 0, 1), 4), math.radians(180), math.radians(360)), False)
sketch11.addGeometry(Part.LineSegment(App.Vector(37.5, -2, 0), App.Vector(37.5, 0, 0)), False)
sketch11.addGeometry(Part.LineSegment(App.Vector(37.5, 0, 0), App.Vector(45.5, 0, 0)), False)
sketch11.addGeometry(Part.LineSegment(App.Vector(67.5, 0, 0), App.Vector(67.5, -2, 0)), False)
sketch11.addGeometry(Part.ArcOfCircle(Part.Circle(App.Vector(63.5, -2, 0), App.Vector(0, 0, 1), 4), math.radians(180), math.radians(360)), False)
sketch11.addGeometry(Part.LineSegment(App.Vector(59.5, -2, 0), App.Vector(59.5, 0, 0)), False)
sketch11.addGeometry(Part.LineSegment(App.Vector(59.5, 0, 0), App.Vector(67.5, 0, 0)), False)
sketch11.addConstraint(Sketcher.Constraint("Tangent", 0, 2, 1, 2))
sketch11.addConstraint(Sketcher.Constraint("Tangent", 1, 1, 2, 1))
sketch11.addConstraint(Sketcher.Constraint("Coincident", 2, 2, 3, 1))
sketch11.addConstraint(Sketcher.Constraint("Coincident", 3, 2, 0, 1))
sketch11.addConstraint(Sketcher.Constraint("Tangent", 4, 2, 5, 2))
sketch11.addConstraint(Sketcher.Constraint("Tangent", 5, 1, 6, 1))
sketch11.addConstraint(Sketcher.Constraint("Coincident", 6, 2, 7, 1))
sketch11.addConstraint(Sketcher.Constraint("Coincident", 7, 2, 4, 1))
sketch11.addConstraint(Sketcher.Constraint("Vertical", 0))
sketch11.addConstraint(Sketcher.Constraint("Vertical", 2))
sketch11.addConstraint(Sketcher.Constraint("Horizontal", 3))
sketch11.addConstraint(Sketcher.Constraint("Vertical", 4))
sketch11.addConstraint(Sketcher.Constraint("Vertical", 6))
sketch11.addConstraint(Sketcher.Constraint("Horizontal", 7))
sketch11.addConstraint(Sketcher.Constraint("Equal", 1, 5))
sketch11.addConstraint(Sketcher.Constraint("PointOnObject", 2, 2, -1))
sketch11.addConstraint(Sketcher.Constraint("PointOnObject", 6, 2, -1))
sketch11.addConstraint(Sketcher.Constraint("Horizontal", 1, 3, 5, 3))
sketch11.addConstraint(Sketcher.Constraint("Radius", 1, 4.0))
sketch11.addConstraint(Sketcher.Constraint("DistanceY", 0, 2, 0, 1, 2.0))
sketch11.addConstraint(Sketcher.Constraint("DistanceX", 1, 3, 5, 3, 22.0))
sketch11.addConstraint(Sketcher.Constraint("DistanceX", -1, 1, 1, 3, 41.5))
pocket9 = body.newObject("PartDesign::Pocket", "Pocket008")
pocket9.Profile = sketch11
pocket9.Length = 10
pocket9.Reversed = True

# Sketch on XY plane
sketch12 = body.newObject("Sketcher::SketchObject", "Sketch011")
sketch12.AttachmentSupport = (doc.getObject("XY_Plane"), [""])
sketch12.MapMode = "FlatFace"
sketch12.AttachmentOffset = App.Placement(App.Vector(0, 0, -91), App.Rotation())
add_polygon(sketch12, [(148, 15.5), (148, 14.5), (153, 14.5), (153, 9.5), (154, 9.5), (154, 15.5)])  # lines 0-5
add_polygon(sketch12, [(0, 15.5), (-6, 15.5), (-6, 9.5), (-5, 9.5), (-5, 14.5), (0, 14.5)])  # lines 6-11
sketch12.addConstraint(Sketcher.Constraint("Vertical", 0))
sketch12.addConstraint(Sketcher.Constraint("Horizontal", 1))
sketch12.addConstraint(Sketcher.Constraint("Vertical", 2))
sketch12.addConstraint(Sketcher.Constraint("Horizontal", 3))
sketch12.addConstraint(Sketcher.Constraint("Vertical", 4))
sketch12.addConstraint(Sketcher.Constraint("Horizontal", 5))
sketch12.addConstraint(Sketcher.Constraint("Horizontal", 6))
sketch12.addConstraint(Sketcher.Constraint("Vertical", 7))
sketch12.addConstraint(Sketcher.Constraint("Horizontal", 8))
sketch12.addConstraint(Sketcher.Constraint("Vertical", 9))
sketch12.addConstraint(Sketcher.Constraint("Horizontal", 10))
sketch12.addConstraint(Sketcher.Constraint("Vertical", 11))
sketch12.addConstraint(Sketcher.Constraint("PointOnObject", 10, 2, -2))
sketch12.addConstraint(Sketcher.Constraint("Horizontal", 5, 2, 6, 2))
sketch12.addConstraint(Sketcher.Constraint("Horizontal", 3, 2, 7, 2))
sketch12.addConstraint(Sketcher.Constraint("Horizontal", 1, 2, 9, 2))
sketch12.addConstraint(Sketcher.Constraint("Equal", 5, 6))
sketch12.addConstraint(Sketcher.Constraint("Equal", 3, 8))
sketch12.addConstraint(Sketcher.Constraint("Equal", 8, 0))
sketch12.addConstraint(Sketcher.Constraint("Equal", 10, 2))
sketch12.addConstraint(Sketcher.Constraint("DistanceX", 1, 1, 1, 2, 5.0))
sketch12.addConstraint(Sketcher.Constraint("DistanceX", 3, 1, 3, 2, 1.0))
sketch12.addConstraint(Sketcher.Constraint("DistanceX", -1, 1, 0, 2, 148.0))
sketch12.addConstraint(Sketcher.Constraint("DistanceY", -1, 1, 0, 2, 14.5))
pad3 = body.newObject("PartDesign::Pad", "Pad002")
pad3.Profile = sketch12
pad3.Length = 15
doc.recompute()

fillet = body.newObject("PartDesign::Fillet", "Fillet")
fillet.Base = (pad3, edges_at(pad3, [(-6, 15.5, -83.5), (154, 15.5, -83.5)]))
fillet.Radius = 1
doc.recompute()

fillet2 = body.newObject("PartDesign::Fillet", "Fillet001")
fillet2.Base = (fillet, edges_at(fillet, [
    (-5.5, 9.5, -91),
    (-5.5, 9.5, -76),
    (153.5, 9.5, -91),
    (153.5, 9.5, -76),
]))
fillet2.Radius = 1

doc.recompute()
